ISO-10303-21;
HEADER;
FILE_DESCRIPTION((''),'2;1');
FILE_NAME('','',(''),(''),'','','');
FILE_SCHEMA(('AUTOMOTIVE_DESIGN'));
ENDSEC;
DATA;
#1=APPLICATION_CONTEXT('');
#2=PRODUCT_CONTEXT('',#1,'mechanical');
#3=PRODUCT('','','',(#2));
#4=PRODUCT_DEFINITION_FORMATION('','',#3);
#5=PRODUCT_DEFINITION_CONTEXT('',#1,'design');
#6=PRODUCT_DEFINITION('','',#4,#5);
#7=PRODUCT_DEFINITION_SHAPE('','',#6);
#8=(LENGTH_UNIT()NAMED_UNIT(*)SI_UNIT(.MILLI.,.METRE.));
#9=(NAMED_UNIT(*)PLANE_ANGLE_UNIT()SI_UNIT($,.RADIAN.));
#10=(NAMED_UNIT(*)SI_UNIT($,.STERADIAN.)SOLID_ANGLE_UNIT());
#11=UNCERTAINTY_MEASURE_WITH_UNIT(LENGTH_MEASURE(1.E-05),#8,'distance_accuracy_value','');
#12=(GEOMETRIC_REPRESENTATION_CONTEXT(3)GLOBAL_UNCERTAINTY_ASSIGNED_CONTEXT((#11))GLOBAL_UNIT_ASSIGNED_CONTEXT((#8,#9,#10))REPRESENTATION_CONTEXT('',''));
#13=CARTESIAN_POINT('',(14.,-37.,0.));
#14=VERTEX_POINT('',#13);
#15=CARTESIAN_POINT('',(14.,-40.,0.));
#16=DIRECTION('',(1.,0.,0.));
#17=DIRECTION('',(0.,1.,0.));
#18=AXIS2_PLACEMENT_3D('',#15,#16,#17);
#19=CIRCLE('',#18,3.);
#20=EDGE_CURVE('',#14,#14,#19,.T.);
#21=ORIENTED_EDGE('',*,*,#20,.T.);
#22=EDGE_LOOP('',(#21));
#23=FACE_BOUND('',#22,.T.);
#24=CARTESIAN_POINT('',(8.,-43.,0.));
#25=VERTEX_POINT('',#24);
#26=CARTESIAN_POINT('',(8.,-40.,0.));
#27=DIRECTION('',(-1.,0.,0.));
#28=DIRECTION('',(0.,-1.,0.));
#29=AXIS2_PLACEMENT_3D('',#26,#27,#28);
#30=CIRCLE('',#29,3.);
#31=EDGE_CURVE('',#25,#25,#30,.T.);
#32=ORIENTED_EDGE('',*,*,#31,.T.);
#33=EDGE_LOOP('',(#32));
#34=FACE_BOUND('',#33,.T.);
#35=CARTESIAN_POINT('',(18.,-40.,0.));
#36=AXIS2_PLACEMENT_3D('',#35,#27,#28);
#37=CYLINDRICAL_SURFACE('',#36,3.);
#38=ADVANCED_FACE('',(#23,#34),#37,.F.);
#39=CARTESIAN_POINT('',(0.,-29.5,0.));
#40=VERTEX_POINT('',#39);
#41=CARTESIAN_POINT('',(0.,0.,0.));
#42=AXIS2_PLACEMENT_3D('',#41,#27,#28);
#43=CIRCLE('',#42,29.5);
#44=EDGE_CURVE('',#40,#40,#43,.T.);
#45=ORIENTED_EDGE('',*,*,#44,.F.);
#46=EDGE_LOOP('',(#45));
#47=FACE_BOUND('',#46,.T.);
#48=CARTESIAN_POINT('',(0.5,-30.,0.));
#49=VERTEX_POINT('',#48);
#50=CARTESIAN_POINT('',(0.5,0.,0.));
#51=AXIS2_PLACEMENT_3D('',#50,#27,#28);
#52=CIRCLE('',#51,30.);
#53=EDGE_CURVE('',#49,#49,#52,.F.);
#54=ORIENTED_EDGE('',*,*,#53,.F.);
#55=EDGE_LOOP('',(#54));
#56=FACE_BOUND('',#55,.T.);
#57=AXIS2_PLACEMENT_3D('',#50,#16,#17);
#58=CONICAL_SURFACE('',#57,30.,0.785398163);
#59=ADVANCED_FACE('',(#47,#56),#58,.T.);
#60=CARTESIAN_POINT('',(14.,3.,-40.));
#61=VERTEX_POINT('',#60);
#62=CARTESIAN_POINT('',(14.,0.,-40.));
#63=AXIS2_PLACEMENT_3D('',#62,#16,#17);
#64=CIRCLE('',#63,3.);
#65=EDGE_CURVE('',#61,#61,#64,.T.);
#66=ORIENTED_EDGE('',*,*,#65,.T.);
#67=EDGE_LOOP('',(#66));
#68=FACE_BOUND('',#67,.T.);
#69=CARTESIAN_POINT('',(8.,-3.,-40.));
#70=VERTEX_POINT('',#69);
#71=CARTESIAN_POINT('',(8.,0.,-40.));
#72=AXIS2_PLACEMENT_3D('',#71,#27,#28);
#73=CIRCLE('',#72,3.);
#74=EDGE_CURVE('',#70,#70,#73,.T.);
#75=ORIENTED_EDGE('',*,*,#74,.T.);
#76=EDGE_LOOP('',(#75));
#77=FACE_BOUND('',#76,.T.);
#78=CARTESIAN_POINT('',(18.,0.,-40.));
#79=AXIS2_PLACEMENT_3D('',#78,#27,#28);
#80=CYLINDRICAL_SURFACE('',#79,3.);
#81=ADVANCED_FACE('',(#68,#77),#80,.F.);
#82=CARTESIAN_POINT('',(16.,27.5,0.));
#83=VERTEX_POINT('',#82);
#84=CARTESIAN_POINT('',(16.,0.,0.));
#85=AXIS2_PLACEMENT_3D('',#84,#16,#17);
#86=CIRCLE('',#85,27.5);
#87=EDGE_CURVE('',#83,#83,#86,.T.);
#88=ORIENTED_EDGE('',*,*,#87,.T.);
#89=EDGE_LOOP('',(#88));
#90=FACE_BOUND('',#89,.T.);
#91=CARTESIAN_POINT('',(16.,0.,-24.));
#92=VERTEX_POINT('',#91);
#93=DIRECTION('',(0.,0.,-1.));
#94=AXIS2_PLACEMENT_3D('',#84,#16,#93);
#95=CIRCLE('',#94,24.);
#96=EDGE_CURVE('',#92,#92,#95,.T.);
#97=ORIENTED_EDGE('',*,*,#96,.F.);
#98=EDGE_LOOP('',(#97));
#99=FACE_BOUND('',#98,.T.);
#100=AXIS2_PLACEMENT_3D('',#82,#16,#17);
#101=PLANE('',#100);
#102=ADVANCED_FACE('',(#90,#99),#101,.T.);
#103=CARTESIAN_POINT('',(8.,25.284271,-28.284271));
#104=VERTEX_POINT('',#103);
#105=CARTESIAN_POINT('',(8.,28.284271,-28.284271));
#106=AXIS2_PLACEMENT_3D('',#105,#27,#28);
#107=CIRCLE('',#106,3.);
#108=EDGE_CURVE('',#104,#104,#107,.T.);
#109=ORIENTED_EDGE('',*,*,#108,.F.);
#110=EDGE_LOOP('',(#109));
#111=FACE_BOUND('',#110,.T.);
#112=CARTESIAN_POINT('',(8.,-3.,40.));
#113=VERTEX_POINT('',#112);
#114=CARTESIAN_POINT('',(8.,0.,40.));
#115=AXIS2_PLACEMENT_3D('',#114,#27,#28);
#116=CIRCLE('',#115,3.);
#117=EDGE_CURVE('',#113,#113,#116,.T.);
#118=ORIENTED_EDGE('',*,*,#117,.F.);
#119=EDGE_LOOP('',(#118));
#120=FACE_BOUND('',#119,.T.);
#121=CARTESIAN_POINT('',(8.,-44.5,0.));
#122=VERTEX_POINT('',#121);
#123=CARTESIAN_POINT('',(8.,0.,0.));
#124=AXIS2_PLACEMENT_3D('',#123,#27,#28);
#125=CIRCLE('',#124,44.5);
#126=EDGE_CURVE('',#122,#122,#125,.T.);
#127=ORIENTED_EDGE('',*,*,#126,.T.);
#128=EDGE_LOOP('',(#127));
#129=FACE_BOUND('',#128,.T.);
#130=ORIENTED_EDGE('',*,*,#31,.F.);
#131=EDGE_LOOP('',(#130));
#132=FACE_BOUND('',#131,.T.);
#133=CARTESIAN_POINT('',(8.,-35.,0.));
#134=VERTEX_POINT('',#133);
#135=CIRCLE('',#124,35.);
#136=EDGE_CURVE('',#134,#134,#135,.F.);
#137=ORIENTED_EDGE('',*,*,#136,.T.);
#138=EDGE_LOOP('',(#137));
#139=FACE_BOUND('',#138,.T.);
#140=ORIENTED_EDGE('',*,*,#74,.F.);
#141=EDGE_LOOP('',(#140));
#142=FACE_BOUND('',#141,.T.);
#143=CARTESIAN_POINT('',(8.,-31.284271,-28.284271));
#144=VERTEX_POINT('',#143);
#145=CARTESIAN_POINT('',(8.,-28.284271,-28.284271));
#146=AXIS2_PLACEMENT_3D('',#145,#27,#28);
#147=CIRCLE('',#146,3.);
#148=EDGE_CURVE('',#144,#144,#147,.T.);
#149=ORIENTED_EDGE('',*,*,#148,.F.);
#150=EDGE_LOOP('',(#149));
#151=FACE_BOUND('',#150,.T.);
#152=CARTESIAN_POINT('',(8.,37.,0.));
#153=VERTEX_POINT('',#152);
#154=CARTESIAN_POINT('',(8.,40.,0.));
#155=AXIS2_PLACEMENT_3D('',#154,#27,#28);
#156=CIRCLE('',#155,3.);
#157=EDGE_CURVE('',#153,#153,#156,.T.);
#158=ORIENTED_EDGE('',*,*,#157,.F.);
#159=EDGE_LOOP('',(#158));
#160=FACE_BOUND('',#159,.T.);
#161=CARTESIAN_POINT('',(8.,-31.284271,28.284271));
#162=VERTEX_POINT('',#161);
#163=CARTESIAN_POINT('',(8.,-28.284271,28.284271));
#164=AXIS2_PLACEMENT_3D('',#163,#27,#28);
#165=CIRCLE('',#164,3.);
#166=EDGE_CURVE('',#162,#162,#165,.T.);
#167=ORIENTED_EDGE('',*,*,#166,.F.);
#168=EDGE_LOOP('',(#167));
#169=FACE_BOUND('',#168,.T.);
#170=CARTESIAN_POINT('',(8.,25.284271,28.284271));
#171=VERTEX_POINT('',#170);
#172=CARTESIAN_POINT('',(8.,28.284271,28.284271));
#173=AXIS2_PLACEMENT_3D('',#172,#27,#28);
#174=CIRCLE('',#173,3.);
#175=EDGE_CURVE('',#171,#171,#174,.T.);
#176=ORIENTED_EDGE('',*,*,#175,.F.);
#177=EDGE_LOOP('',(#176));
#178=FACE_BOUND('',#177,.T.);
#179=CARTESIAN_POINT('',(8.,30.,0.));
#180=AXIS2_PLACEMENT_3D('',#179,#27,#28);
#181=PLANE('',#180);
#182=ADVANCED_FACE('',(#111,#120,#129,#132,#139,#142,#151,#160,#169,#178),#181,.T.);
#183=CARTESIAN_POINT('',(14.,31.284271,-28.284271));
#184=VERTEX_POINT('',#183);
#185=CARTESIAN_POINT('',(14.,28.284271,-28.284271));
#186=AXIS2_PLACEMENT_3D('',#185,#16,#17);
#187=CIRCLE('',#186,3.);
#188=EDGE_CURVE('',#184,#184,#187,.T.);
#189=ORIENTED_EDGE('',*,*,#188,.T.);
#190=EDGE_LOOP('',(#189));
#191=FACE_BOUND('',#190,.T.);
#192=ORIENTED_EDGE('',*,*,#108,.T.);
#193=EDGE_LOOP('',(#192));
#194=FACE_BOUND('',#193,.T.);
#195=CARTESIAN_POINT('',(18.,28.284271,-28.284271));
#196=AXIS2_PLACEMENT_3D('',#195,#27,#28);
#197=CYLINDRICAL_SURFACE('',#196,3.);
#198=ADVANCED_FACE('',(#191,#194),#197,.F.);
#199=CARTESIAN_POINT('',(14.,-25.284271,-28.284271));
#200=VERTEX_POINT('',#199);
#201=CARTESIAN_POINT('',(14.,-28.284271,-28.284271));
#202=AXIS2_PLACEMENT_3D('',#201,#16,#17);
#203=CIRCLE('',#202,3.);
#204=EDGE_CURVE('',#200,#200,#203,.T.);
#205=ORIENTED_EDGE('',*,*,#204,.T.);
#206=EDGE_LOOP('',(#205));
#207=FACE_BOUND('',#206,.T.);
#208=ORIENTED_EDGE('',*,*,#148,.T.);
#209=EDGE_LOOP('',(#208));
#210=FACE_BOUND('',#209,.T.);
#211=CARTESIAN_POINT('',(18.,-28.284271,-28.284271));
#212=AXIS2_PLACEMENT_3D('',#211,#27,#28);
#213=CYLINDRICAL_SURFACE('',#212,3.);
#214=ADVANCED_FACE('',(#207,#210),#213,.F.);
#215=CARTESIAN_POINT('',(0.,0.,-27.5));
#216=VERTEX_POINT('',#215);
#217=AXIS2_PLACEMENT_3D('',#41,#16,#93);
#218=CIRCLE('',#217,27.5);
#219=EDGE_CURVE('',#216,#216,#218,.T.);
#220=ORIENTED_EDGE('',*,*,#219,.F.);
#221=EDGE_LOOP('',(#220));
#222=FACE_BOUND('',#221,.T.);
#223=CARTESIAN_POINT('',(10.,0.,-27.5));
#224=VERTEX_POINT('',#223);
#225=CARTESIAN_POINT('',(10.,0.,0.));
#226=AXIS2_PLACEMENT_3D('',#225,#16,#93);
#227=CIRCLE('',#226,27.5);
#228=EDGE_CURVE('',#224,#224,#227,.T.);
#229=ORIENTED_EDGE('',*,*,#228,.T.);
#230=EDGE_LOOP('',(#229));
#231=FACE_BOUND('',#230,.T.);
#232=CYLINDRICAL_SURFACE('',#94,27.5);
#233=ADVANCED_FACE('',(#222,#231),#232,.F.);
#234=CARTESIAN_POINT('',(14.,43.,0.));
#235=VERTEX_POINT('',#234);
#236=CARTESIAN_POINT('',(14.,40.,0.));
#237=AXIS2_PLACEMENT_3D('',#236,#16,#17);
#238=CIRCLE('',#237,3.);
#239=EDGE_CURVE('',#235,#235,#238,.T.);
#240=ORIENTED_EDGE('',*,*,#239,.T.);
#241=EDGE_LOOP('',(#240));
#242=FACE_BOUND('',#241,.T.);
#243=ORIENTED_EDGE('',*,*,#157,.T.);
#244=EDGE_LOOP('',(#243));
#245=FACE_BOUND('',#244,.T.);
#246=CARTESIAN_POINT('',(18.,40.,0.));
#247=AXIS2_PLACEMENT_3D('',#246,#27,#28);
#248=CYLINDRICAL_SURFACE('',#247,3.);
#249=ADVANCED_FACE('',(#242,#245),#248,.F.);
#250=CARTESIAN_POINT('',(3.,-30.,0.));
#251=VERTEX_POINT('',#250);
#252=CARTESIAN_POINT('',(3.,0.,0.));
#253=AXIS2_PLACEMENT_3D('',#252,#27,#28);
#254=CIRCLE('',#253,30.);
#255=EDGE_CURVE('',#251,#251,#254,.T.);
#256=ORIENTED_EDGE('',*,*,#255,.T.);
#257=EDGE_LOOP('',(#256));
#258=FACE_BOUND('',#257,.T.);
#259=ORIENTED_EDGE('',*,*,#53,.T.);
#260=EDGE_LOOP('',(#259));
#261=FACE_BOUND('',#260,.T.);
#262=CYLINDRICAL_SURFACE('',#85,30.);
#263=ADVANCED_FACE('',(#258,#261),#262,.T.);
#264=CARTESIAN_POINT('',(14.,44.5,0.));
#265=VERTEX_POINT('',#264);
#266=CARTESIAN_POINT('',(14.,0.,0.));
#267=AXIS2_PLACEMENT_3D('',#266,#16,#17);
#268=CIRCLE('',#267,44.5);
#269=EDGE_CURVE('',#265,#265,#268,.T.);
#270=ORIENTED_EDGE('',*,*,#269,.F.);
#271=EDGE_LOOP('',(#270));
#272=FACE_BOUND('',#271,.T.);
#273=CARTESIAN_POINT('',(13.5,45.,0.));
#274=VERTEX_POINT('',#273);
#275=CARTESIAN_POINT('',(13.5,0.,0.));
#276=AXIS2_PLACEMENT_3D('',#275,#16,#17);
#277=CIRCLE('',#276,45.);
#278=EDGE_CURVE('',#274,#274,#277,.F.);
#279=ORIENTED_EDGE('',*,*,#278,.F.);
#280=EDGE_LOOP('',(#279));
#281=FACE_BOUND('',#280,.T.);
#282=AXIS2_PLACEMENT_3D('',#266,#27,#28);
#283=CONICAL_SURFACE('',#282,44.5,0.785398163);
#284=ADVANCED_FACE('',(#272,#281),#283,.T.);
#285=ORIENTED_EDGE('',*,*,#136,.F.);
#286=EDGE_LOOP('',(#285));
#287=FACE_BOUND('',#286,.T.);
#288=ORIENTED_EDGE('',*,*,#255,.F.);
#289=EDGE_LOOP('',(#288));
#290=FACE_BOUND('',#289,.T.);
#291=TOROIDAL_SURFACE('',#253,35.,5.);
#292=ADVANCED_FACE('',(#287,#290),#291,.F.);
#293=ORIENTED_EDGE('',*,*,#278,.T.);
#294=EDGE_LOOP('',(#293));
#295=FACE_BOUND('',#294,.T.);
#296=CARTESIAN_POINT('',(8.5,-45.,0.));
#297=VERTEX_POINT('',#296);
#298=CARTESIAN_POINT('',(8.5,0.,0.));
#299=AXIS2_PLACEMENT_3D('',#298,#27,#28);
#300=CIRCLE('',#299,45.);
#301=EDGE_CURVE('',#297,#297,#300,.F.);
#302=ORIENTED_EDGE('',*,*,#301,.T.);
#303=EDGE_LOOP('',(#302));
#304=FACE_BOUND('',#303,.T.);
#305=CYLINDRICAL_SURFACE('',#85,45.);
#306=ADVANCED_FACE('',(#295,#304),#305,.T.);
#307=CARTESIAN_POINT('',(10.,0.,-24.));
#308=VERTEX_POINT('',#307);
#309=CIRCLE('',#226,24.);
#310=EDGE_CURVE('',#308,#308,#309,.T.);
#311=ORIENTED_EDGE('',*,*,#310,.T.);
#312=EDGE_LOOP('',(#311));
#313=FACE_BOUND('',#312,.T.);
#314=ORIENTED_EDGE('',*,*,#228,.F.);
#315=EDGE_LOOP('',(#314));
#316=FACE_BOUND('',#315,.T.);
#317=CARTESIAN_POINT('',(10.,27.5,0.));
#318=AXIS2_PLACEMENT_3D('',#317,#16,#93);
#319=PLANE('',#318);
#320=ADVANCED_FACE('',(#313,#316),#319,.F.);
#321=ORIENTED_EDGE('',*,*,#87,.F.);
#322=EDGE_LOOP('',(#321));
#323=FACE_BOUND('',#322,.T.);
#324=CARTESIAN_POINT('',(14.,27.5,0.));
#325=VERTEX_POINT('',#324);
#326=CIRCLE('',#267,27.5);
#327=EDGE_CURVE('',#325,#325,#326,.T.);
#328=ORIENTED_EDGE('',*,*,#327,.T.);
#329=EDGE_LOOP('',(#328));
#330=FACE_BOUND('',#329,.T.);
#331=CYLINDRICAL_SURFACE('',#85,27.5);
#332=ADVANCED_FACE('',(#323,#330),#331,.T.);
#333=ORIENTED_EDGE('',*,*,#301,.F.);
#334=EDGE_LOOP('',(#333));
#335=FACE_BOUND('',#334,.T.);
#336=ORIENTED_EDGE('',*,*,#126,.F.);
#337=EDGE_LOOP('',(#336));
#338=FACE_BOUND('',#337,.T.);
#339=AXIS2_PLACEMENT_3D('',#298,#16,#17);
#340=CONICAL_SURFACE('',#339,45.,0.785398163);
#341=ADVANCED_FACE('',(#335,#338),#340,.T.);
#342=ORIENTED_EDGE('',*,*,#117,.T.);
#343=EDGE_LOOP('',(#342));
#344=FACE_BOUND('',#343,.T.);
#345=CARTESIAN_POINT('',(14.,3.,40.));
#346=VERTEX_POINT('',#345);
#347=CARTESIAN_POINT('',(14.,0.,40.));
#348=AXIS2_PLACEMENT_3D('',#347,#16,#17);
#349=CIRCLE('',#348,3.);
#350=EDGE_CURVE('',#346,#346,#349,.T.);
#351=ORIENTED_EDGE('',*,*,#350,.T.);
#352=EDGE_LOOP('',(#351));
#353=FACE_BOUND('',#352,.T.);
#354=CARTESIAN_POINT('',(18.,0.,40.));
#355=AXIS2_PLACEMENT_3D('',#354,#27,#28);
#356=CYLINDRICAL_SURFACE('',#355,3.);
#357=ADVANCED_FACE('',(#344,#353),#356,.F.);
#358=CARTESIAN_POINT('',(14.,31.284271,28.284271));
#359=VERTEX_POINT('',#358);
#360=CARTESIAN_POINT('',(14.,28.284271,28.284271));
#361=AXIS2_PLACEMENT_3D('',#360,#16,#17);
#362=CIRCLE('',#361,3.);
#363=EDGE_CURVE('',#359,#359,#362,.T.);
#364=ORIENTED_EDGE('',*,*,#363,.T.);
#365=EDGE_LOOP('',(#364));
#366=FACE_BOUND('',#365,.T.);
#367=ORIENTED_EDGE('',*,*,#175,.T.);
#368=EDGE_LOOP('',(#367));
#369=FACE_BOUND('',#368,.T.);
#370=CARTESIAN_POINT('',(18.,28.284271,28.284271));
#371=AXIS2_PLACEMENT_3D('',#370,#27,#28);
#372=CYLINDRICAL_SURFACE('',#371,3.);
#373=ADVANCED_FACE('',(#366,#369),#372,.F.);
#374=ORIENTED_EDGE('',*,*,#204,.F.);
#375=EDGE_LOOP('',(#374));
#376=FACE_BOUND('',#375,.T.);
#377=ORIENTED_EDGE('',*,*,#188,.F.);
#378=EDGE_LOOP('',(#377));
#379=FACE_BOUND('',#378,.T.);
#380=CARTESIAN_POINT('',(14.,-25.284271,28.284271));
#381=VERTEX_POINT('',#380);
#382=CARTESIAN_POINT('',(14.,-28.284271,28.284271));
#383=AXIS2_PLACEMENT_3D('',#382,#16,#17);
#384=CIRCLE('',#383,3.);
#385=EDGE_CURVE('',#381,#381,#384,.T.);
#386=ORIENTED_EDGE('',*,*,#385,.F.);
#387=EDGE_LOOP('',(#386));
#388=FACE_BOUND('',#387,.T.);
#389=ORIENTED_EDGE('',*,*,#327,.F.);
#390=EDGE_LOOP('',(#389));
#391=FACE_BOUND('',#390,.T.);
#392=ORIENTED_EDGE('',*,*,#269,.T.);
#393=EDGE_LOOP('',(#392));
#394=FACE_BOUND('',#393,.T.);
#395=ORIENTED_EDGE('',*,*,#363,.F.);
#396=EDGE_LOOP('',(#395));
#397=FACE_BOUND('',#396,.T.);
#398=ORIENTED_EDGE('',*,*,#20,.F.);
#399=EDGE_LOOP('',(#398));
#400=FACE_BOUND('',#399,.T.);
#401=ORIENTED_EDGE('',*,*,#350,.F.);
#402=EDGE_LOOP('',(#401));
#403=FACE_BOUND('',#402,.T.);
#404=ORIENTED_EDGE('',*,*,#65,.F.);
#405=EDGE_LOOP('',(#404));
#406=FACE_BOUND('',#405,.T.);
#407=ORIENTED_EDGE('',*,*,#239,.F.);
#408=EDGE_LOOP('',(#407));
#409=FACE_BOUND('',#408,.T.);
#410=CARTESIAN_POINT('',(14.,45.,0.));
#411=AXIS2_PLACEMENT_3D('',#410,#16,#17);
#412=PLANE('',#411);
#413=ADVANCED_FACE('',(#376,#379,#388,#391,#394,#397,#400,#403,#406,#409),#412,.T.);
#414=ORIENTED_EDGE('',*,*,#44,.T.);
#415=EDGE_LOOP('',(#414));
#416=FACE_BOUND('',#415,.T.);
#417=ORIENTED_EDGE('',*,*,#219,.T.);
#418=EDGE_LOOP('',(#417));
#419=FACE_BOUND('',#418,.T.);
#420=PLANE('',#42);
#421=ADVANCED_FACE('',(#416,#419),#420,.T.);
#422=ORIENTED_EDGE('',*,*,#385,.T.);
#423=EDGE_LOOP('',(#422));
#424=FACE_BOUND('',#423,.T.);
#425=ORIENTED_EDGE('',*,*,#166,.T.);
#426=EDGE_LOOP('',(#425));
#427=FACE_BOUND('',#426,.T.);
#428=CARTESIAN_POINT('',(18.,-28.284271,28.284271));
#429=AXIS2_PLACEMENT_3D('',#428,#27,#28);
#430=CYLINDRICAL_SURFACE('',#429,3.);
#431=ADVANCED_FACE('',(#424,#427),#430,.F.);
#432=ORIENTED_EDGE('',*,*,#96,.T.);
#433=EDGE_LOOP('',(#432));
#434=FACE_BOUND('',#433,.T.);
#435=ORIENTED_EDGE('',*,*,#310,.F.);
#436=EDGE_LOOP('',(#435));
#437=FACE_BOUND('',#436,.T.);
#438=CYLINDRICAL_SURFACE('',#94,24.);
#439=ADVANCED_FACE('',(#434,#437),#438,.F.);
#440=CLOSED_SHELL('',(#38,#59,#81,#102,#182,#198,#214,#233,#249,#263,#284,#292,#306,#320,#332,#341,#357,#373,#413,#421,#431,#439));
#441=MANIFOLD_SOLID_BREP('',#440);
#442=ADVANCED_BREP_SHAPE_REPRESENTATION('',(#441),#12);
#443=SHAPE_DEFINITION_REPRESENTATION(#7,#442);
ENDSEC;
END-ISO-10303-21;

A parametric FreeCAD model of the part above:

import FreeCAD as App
import Part
import Sketcher

V = App.Vector


def edges_at(feature, points):
    """Names of the edges that pass closest to the given points."""
    edges = feature.Shape.Edges
    near = lambda p: min(range(len(edges)), key=lambda i: edges[i].distToShape(Part.Vertex(*p))[0])
    return sorted({f"Edge{near(p) + 1}" for p in points})

doc = App.newDocument("Part")
body = doc.addObject("PartDesign::Body", "Body")

# Sketch on XY plane
sketch1 = body.newObject("Sketcher::SketchObject", "Sketch")
sketch1.AttachmentSupport = (doc.getObject("XY_Plane"), [""])
sketch1.MapMode = "FlatFace"
sketch1.addGeometry([
    Part.LineSegment(V(0, 30, 0), V(0, 0, 0)),  # 0
    Part.LineSegment(V(0, 0, 0), V(16, 0, 0)),  # 1
    Part.LineSegment(V(16, 0, 0), V(16, 27.5, 0)),  # 2
    Part.LineSegment(V(16, 27.5, 0), V(14, 27.5, 0)),  # 3
    Part.LineSegment(V(14, 27.5, 0), V(14, 45, 0)),  # 4
    Part.LineSegment(V(14, 45, 0), V(8, 45, 0)),  # 5
    Part.LineSegment(V(8, 45, 0), V(8, 30, 0)),  # 6
    Part.LineSegment(V(8, 30, 0), V(0, 30, 0)),  # 7
], False)
sketch1.addConstraint([
    Sketcher.Constraint("Coincident", 0, 2, 1, 1),
    Sketcher.Constraint("Coincident", 1, 2, 2, 1),
    Sketcher.Constraint("Coincident", 2, 2, 3, 1),
    Sketcher.Constraint("Coincident", 3, 2, 4, 1),
    Sketcher.Constraint("Coincident", 4, 2, 5, 1),
    Sketcher.Constraint("Coincident", 5, 2, 6, 1),
    Sketcher.Constraint("Coincident", 6, 2, 7, 1),
    Sketcher.Constraint("Coincident", 7, 2, 0, 1),
    Sketcher.Constraint("Vertical", 0),
    Sketcher.Constraint("Horizontal", 1),
    Sketcher.Constraint("Vertical", 2),
    Sketcher.Constraint("Horizontal", 3),
    Sketcher.Constraint("Vertical", 4),
    Sketcher.Constraint("Horizontal", 5),
    Sketcher.Constraint("Vertical", 6),
    Sketcher.Constraint("Horizontal", 7),
    Sketcher.Constraint("Coincident", 0, 2, -1, 1),
    Sketcher.Constraint("DistanceX", 1, 1, 1, 2, 16.0),
    Sketcher.Constraint("DistanceX", 3, 2, 3, 1, 2.0),
    Sketcher.Constraint("DistanceX", 5, 2, 5, 1, 6.0),
    Sketcher.Constraint("DistanceY", 0, 2, 0, 1, 30.0),
    Sketcher.Constraint("DistanceY", 6, 2, 6, 1, 15.0),
    Sketcher.Constraint("DistanceY", 2, 1, 2, 2, 27.5),
])
revolution = body.newObject("PartDesign::Revolution", "Revolution")
revolution.Profile = sketch1
revolution.ReferenceAxis = (sketch1, ["H_Axis"])
revolution.Angle = 360

# Sketch on XY plane
sketch2 = body.newObject("Sketcher::SketchObject", "Sketch001")
sketch2.AttachmentSupport = (doc.getObject("XY_Plane"), [""])
sketch2.MapMode = "FlatFace"
sketch2.addGeometry([
    Part.LineSegment(V(0, 27.5, 0), V(0, 0, 0)),  # 0
    Part.LineSegment(V(0, 0, 0), V(16, 0, 0)),  # 1
    Part.LineSegment(V(16, 0, 0), V(16, 24, 0)),  # 2
    Part.LineSegment(V(16, 24, 0), V(10, 24, 0)),  # 3
    Part.LineSegment(V(10, 24, 0), V(10, 27.5, 0)),  # 4
    Part.LineSegment(V(10, 27.5, 0), V(0, 27.5, 0)),  # 5
], False)
sketch2.addConstraint([
    Sketcher.Constraint("Coincident", 0, 2, 1, 1),
    Sketcher.Constraint("Coincident", 1, 2, 2, 1),
    Sketcher.Constraint("Coincident", 2, 2, 3, 1),
    Sketcher.Constraint("Coincident", 3, 2, 4, 1),
    Sketcher.Constraint("Coincident", 4, 2, 5, 1),
    Sketcher.Constraint("Coincident", 5, 2, 0, 1),
    Sketcher.Constraint("Vertical", 0),
    Sketcher.Constraint("Horizontal", 1),
    Sketcher.Constraint("Vertical", 2),
    Sketcher.Constraint("Horizontal", 3),
    Sketcher.Constraint("Vertical", 4),
    Sketcher.Constraint("Horizontal", 5),
    Sketcher.Constraint("Coincident", 0, 2, -1, 1),
    Sketcher.Constraint("DistanceX", 1, 1, 1, 2, 16.0),
    Sketcher.Constraint("DistanceX", 3, 2, 3, 1, 6.0),
    Sketcher.Constraint("DistanceY", 2, 1, 2, 2, 24.0),
    Sketcher.Constraint("DistanceY", 0, 2, 0, 1, 27.5),
])
groove = body.newObject("PartDesign::Groove", "Groove")
groove.Profile = sketch2
groove.ReferenceAxis = (sketch2, ["H_Axis"])
groove.Angle = 360

# Sketch on YZ plane
sketch3 = body.newObject("Sketcher::SketchObject", "Sketch002")
sketch3.AttachmentSupport = (doc.getObject("YZ_Plane"), [""])
sketch3.MapMode = "FlatFace"
sketch3.AttachmentOffset = App.Placement(V(0, 0, 8), App.Rotation())
sketch3.addGeometry([
    Part.Circle(V(40, 0, 0), V(0, 0, 1), 3),  # 0
    Part.Circle(V(28.284271, 28.284271, 0), V(0, 0, 1), 3),  # 1
    Part.Circle(V(0, 40, 0), V(0, 0, 1), 3),  # 2
    Part.Circle(V(-28.284271, 28.284271, 0), V(0, 0, 1), 3),  # 3
    Part.Circle(V(-40, 0, 0), V(0, 0, 1), 3),  # 4
    Part.Circle(V(-28.284271, -28.284271, 0), V(0, 0, 1), 3),  # 5
    Part.Circle(V(0, -40, 0), V(0, 0, 1), 3),  # 6
    Part.Circle(V(28.284271, -28.284271, 0), V(0, 0, 1), 3),  # 7
], False)
sketch3.addConstraint([
    Sketcher.Constraint("Equal", 0, 1),
    Sketcher.Constraint("Equal", 1, 2),
    Sketcher.Constraint("Equal", 2, 3),
    Sketcher.Constraint("Equal", 3, 4),
    Sketcher.Constraint("Equal", 4, 5),
    Sketcher.Constraint("Equal", 5, 6),
    Sketcher.Constraint("Equal", 6, 7),
    Sketcher.Constraint("Symmetric", 0, 3, 4, 3, -1, 1),
    Sketcher.Constraint("Symmetric", 1, 3, 5, 3, -1, 1),
    Sketcher.Constraint("Symmetric", 2, 3, 6, 3, -1, 1),
    Sketcher.Constraint("Symmetric", 3, 3, 7, 3, -1, 1),
    Sketcher.Constraint("Symmetric", 1, 3, 3, 3, -2),
    Sketcher.Constraint("PointOnObject", 0, 3, -1),
    Sketcher.Constraint("PointOnObject", 2, 3, -2),
    Sketcher.Constraint("Diameter", 0, 6.0),
    Sketcher.Constraint("DistanceX", -1, 1, 0, 3, 40.0),
    Sketcher.Constraint("DistanceY", -1, 1, 2, 3, 40.0),
    Sketcher.Constraint("DistanceX", -1, 1, 1, 3, 28.284271),
    Sketcher.Constraint("DistanceY", -1, 1, 1, 3, 28.284271),
])
pocket1 = body.newObject("PartDesign::Pocket", "Pocket")
pocket1.Profile = sketch3
pocket1.Length = 10
pocket1.Reversed = True
doc.recompute()

chamfer = body.newObject("PartDesign::Chamfer", "Chamfer")
chamfer.Base = (pocket1, edges_at(pocket1, [(14, -45, 0), (8, -45, 0), (0, -30, 0)]))
chamfer.Size = 0.5
doc.recompute()

fillet = body.newObject("PartDesign::Fillet", "Fillet")
fillet.Base = (chamfer, edges_at(chamfer, [(8, -30, 0)]))
fillet.Radius = 5

doc.recompute()
